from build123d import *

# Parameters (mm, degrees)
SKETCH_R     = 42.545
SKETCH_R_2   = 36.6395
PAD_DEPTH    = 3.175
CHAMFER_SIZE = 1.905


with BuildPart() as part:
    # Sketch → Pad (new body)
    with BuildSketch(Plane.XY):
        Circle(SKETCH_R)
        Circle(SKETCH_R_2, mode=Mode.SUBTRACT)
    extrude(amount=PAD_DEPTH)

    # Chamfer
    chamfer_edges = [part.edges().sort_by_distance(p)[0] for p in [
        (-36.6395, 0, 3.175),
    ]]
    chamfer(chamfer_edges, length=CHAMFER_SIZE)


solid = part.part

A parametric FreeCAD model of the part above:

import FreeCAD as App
import Part
import Sketcher

V = App.Vector
Q = App.Units.Quantity


def edges_at(feature, points):
    """Names of the edges that pass closest to the given points."""
    edges = feature.Shape.Edges
    near = lambda p: min(range(len(edges)), key=lambda i: edges[i].distToShape(Part.Vertex(*p))[0])
    return sorted({f"Edge{near(p) + 1}" for p in points})

doc = App.newDocument("Part")
body = doc.addObject("PartDesign::Body", "Body")

# Sketch on XY plane
sketch1 = doc.addObject("Sketcher::SketchObject", "Sketch")
body.addObject(sketch1)
sketch1.AttachmentSupport = (doc.XY_Plane, [""])
sketch1.MapMode = "FlatFace"
sketch1.addGeometry(Part.Circle(V(0, 0, 0), V(0, 0, 1), 43), False)
sketch1.addGeometry(Part.Circle(V(0, 0, 0), V(0, 0, 1), 37), False)
sketch1.addConstraint(Sketcher.Constraint("Coincident", 0, 3, -1, 1))
sketch1.addConstraint(Sketcher.Constraint("Coincident", 1, 3, -1, 1))
sketch1.addConstraint(Sketcher.Constraint("Diameter", 0, Q("3.35 in")))
sketch1.addConstraint(Sketcher.Constraint("Diameter", 1, Q("2.885 in")))
pad1 = doc.addObject("PartDesign::Pad", "Pad")
body.addObject(pad1)
pad1.Profile = sketch1
pad1.Length = Q("0.125 in")
doc.recompute()

chamfer = doc.addObject("PartDesign::Chamfer", "Chamfer")
body.addObject(chamfer)
chamfer.Base = (pad1, edges_at(pad1, [(-36.639, 0, 3.175)]))
chamfer.Size = Q("0.075 in")

doc.recompute()
